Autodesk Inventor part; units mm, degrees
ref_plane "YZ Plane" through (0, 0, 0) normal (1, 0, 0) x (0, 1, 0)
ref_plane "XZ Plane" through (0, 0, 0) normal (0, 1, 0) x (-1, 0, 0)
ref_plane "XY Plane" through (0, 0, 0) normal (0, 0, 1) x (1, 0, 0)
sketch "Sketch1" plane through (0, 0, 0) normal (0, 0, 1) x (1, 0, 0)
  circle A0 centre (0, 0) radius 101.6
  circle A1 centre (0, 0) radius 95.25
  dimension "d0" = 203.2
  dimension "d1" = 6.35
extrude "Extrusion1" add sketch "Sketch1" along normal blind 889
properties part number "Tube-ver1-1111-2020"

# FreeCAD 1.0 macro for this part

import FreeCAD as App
import Part
import Sketcher

V = App.Vector
Q = App.Units.Quantity

doc = App.newDocument("Part")
body = doc.addObject("PartDesign::Body", "Body")

sketch1 = doc.addObject("Sketcher::SketchObject", "Sketch")
body.addObject(sketch1)
sketch1.AttachmentSupport = (doc.XY_Plane, [""])
sketch1.MapMode = "FlatFace"
sketch1.addGeometry([
    Part.Circle(V(0, 0, 0), V(0, 0, 1), 101.6),
    Part.Circle(V(0, 0, 0), V(0, 0, 1), 95.25),
], False)
sketch1.addConstraint([
    Sketcher.Constraint("Coincident", 0, 3, -1, 1),
    Sketcher.Constraint("Coincident", 1, 3, -1, 1),
    Sketcher.Constraint("Diameter", 0, Q("8 in")),
    Sketcher.Constraint("Diameter", 1, Q("7.5 in")),
])
pad1 = doc.addObject("PartDesign::Pad", "Pad")
body.addObject(pad1)
pad1.Profile = sketch1
pad1.Length = Q("35 in")

doc.recompute()
